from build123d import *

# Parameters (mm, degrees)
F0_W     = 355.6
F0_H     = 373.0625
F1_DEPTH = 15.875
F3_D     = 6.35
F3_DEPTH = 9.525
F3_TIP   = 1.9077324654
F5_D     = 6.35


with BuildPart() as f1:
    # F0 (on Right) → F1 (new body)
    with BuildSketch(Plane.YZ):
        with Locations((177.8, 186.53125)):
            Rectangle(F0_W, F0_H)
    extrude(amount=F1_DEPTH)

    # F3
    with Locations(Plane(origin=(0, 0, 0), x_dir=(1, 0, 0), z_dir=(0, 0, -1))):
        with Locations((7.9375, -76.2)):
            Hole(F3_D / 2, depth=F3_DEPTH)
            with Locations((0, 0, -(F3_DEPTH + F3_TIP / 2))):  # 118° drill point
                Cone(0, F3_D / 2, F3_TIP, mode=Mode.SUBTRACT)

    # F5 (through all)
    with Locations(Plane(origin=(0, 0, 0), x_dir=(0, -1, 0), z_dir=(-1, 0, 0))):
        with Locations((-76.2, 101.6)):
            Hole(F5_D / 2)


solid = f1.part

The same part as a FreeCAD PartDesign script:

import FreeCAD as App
import Part
import Sketcher

V = App.Vector
Q = App.Units.Quantity

doc = App.newDocument("Part")
body = doc.addObject("PartDesign::Body", "Body")

sketch1 = doc.addObject("Sketcher::SketchObject", "Sketch")
body.addObject(sketch1)
sketch1.AttachmentSupport = (doc.YZ_Plane, [""])
sketch1.MapMode = "FlatFace"
sketch1.addGeometry([
    Part.LineSegment(V(0, 373, 0), V(0, 0, 0)),
    Part.LineSegment(V(0, 0, 0), V(356, 0, 0)),
    Part.LineSegment(V(356, 0, 0), V(356, 373, 0)),
    Part.LineSegment(V(356, 373, 0), V(0, 373, 0)),
], False)
sketch1.addConstraint([
    Sketcher.Constraint("Coincident", 0, 2, 1, 1),
    Sketcher.Constraint("Coincident", 1, 2, 2, 1),
    Sketcher.Constraint("Coincident", 2, 2, 3, 1),
    Sketcher.Constraint("Coincident", 3, 2, 0, 1),
    Sketcher.Constraint("Vertical", 0),
    Sketcher.Constraint("Horizontal", 1),
    Sketcher.Constraint("Vertical", 2),
    Sketcher.Constraint("Horizontal", 3),
    Sketcher.Constraint("Coincident", 0, 2, -1, 1),
    Sketcher.Constraint("DistanceX", 1, 1, 1, 2, Q("14 in")),
    Sketcher.Constraint("DistanceY", 0, 2, 0, 1, Q("14.6875 in")),
])
pad1 = doc.addObject("PartDesign::Pad", "Pad")
body.addObject(pad1)
pad1.Profile = sketch1
pad1.Length = Q("0.625 in")

sketch2 = doc.addObject("Sketcher::SketchObject", "Sketch001")
body.addObject(sketch2)
sketch2.AttachmentSupport = (doc.XY_Plane, [""])
sketch2.MapMode = "FlatFace"
sketch2.addGeometry(Part.Circle(V(7.9, 76.2, 0), V(0, 0, 1), 3.2), False)
sketch2.addConstraint([
    Sketcher.Constraint("Diameter", 0, Q("0.25 in")),
    Sketcher.Constraint("DistanceY", -1, 1, 0, 3, Q("3 in")),
    Sketcher.Constraint("DistanceX", -1, 1, 0, 3, Q("0.3125 in")),
])
doc.recompute()
hole = doc.addObject("PartDesign::Hole", "Hole")
body.addObject(hole)
hole.Profile = sketch2
hole.ThreadType = "None"
hole.Diameter = Q("0.25 in")
hole.DepthType = "Dimension"
hole.Depth = Q("0.375 in")
hole.DrillPoint = "Angled"
hole.DrillPointAngle = 118
hole.Reversed = True

sketch3 = doc.addObject("Sketcher::SketchObject", "Sketch002")
body.addObject(sketch3)
sketch3.AttachmentSupport = (doc.YZ_Plane, [""])
sketch3.MapMode = "FlatFace"
sketch3.addGeometry(Part.Circle(V(76.2, 101.6, 0), V(0, 0, 1), 3.2), False)
sketch3.addConstraint([
    Sketcher.Constraint("Diameter", 0, Q("0.25 in")),
    Sketcher.Constraint("DistanceX", -1, 1, 0, 3, Q("3 in")),
    Sketcher.Constraint("DistanceY", -1, 1, 0, 3, Q("4 in")),
])
doc.recompute()
hole2 = doc.addObject("PartDesign::Hole", "Hole001")
body.addObject(hole2)
hole2.Profile = sketch3
hole2.ThreadType = "None"
hole2.Diameter = Q("0.25 in")
hole2.DepthType = "ThroughAll"
hole2.Reversed = True

doc.recompute()
